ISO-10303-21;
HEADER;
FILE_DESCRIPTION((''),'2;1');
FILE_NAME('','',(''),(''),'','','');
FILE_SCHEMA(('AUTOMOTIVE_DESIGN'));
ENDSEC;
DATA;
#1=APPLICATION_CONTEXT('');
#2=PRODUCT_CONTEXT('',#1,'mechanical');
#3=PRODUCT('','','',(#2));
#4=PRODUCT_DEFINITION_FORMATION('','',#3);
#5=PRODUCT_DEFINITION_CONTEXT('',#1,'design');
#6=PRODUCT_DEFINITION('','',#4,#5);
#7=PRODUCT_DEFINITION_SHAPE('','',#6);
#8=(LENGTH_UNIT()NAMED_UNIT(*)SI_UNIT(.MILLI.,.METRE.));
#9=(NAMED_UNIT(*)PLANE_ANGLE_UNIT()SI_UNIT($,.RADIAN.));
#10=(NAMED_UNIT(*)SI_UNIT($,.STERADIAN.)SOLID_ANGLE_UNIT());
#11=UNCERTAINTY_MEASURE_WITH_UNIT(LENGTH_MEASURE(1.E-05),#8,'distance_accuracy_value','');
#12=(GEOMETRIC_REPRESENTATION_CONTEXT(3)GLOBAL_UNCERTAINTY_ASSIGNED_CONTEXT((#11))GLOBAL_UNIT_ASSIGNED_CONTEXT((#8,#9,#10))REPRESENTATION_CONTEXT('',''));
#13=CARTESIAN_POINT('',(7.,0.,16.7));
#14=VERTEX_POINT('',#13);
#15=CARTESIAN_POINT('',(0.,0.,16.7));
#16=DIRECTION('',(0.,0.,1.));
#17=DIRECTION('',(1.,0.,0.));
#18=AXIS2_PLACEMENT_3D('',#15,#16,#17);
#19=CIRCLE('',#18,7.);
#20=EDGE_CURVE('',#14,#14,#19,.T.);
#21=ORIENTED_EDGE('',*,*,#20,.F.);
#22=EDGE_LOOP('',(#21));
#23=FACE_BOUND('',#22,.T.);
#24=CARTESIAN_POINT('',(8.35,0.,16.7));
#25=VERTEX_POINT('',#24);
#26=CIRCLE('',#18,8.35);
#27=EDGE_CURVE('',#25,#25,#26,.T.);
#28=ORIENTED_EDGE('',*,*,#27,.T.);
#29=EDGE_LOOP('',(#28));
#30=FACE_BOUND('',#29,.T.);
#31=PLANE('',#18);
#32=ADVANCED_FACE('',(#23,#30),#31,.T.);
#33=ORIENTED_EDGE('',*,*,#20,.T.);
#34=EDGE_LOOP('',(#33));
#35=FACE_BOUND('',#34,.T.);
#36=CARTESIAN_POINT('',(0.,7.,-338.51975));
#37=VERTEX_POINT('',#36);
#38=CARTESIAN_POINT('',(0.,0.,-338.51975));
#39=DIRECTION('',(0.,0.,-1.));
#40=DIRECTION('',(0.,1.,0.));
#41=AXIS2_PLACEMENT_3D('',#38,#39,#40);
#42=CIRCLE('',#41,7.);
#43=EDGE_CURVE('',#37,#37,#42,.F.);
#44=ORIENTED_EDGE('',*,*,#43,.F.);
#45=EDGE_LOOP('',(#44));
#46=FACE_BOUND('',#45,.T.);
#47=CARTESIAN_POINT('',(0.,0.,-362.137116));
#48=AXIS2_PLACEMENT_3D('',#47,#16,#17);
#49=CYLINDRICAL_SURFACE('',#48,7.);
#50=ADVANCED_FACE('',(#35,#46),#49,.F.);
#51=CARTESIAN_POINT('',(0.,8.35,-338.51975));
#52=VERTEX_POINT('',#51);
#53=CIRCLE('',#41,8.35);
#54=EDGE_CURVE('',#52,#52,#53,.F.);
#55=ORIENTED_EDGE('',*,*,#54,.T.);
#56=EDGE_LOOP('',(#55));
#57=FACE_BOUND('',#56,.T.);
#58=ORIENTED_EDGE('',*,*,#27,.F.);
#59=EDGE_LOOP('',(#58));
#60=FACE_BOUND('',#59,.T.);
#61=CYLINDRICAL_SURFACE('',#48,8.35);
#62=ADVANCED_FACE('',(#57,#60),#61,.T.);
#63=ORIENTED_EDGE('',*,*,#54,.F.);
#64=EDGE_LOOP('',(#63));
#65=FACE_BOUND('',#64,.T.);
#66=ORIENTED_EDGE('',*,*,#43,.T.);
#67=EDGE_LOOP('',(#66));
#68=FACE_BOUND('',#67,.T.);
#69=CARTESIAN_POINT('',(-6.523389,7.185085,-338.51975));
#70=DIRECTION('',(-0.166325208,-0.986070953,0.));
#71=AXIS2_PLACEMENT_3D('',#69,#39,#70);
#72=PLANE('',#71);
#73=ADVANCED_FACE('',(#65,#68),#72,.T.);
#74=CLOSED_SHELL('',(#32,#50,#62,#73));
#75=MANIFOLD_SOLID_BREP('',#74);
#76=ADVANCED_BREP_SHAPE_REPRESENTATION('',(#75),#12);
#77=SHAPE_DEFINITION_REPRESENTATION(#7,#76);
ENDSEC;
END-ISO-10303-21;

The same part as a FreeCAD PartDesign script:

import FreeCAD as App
import Part
import Sketcher
from FreeCAD import Vector

doc = App.newDocument("Part")
body = doc.addObject("PartDesign::Body", "Body")

# Sketch on XY plane
sketch1 = body.newObject("Sketcher::SketchObject", "Sketch")
sketch1.AttachmentSupport = (doc.getObject("XY_Plane"), [""])
sketch1.MapMode = "FlatFace"
sketch1.addGeometry([
    Part.Circle(Vector(0, 0, 0), Vector(0, 0, 1), 8),
    Part.Circle(Vector(0, 0, 0), Vector(0, 0, 1), 7),
], False)
sketch1.addConstraint([
    Sketcher.Constraint("Coincident", 0, 3, -1, 1),
    Sketcher.Constraint("Coincident", 1, 3, -1, 1),
    Sketcher.Constraint("Diameter", 1, 14.0),
    Sketcher.Constraint("Diameter", 0, 16.7),
])
pad1 = body.newObject("PartDesign::Pad", "Pad")
pad1.Profile = sketch1
pad1.Type = "TwoLengths"
pad1.Length = 16.7
pad1.Length2 = 338.51975

doc.recompute()
